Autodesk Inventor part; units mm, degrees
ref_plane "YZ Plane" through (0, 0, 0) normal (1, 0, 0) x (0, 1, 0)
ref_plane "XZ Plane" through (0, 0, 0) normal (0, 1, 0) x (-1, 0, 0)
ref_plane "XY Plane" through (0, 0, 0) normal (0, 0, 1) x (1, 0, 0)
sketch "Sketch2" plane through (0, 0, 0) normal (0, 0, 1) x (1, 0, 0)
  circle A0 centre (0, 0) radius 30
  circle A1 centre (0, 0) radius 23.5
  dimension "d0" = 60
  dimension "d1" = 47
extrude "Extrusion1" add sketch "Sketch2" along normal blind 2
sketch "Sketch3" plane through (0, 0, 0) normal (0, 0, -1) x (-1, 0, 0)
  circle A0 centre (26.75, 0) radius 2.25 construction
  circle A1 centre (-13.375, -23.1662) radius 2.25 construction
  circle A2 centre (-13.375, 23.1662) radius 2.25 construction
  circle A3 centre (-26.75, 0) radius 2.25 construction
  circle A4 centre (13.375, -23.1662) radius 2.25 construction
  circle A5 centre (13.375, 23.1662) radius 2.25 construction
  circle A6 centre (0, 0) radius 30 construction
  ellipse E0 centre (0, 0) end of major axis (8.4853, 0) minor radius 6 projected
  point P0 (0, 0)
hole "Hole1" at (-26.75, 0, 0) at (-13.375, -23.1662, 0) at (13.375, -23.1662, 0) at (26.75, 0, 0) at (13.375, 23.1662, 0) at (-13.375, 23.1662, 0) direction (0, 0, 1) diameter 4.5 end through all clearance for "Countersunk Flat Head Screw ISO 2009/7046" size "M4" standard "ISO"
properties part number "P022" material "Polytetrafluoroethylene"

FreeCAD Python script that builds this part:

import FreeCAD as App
import Part
import Sketcher
Q = App.Units.Quantity

doc = App.newDocument("Part")
body = doc.addObject("PartDesign::Body", "Body")

sketch1 = body.newObject("Sketcher::SketchObject", "Sketch")
sketch1.AttachmentSupport = (doc.getObject("XY_Plane"), [""])
sketch1.MapMode = "FlatFace"
sketch1.addGeometry([
    Part.Circle(App.Vector(0, 0, 0), App.Vector(0, 0, 1), 30),
    Part.Circle(App.Vector(0, 0, 0), App.Vector(0, 0, 1), 23.5),
], False)
sketch1.addConstraint([
    Sketcher.Constraint("Coincident", 0, 3, -1, 1),
    Sketcher.Constraint("Coincident", 1, 3, -1, 1),
    Sketcher.Constraint("Diameter", 0, Q("60 mm")),
    Sketcher.Constraint("Diameter", 1, Q("47 mm")),
])
pad1 = body.newObject("PartDesign::Pad", "Pad")
pad1.Profile = sketch1
pad1.Length = 2

sketch2 = body.newObject("Sketcher::SketchObject", "Sketch001")
sketch2.AttachmentSupport = (doc.getObject("XY_Plane"), [""])
sketch2.MapMode = "FlatFace"
sketch2.addGeometry([
    Part.Circle(App.Vector(-26.75, 0, 0), App.Vector(0, 0, 1), 2.25),
    Part.Circle(App.Vector(-13.375, -23.1662, 0), App.Vector(0, 0, 1), 2.25),
    Part.Circle(App.Vector(13.375, -23.1662, 0), App.Vector(0, 0, 1), 2.25),
    Part.Circle(App.Vector(26.75, 0, 0), App.Vector(0, 0, 1), 2.25),
    Part.Circle(App.Vector(13.375, 23.1662, 0), App.Vector(0, 0, 1), 2.25),
    Part.Circle(App.Vector(-13.375, 23.1662, 0), App.Vector(0, 0, 1), 2.25),
], False)
sketch2.addConstraint([
    Sketcher.Constraint("Equal", 0, 1),
    Sketcher.Constraint("Equal", 1, 2),
    Sketcher.Constraint("Equal", 2, 3),
    Sketcher.Constraint("Equal", 3, 4),
    Sketcher.Constraint("Equal", 4, 5),
    Sketcher.Constraint("Symmetric", 0, 3, 3, 3, -1, 1),
    Sketcher.Constraint("Symmetric", 1, 3, 4, 3, -1, 1),
    Sketcher.Constraint("Symmetric", 2, 3, 5, 3, -1, 1),
    Sketcher.Constraint("Symmetric", 1, 3, 2, 3, -2),
    Sketcher.Constraint("PointOnObject", 0, 3, -1),
    Sketcher.Constraint("Diameter", 0, Q("4.5 mm")),
    Sketcher.Constraint("DistanceX", 0, 3, 3, 3, Q("53.5 mm")),
    Sketcher.Constraint("DistanceX", 1, 3, 2, 3, Q("26.75 mm")),
    Sketcher.Constraint("DistanceY", 1, 3, -1, 1, Q("23.1662 mm")),
])
doc.recompute()
hole = body.newObject("PartDesign::Hole", "Hole")
hole.Profile = sketch2
hole.ThreadType = "None"
hole.Diameter = 4.5
hole.DepthType = "ThroughAll"
hole.Reversed = True

doc.recompute()
